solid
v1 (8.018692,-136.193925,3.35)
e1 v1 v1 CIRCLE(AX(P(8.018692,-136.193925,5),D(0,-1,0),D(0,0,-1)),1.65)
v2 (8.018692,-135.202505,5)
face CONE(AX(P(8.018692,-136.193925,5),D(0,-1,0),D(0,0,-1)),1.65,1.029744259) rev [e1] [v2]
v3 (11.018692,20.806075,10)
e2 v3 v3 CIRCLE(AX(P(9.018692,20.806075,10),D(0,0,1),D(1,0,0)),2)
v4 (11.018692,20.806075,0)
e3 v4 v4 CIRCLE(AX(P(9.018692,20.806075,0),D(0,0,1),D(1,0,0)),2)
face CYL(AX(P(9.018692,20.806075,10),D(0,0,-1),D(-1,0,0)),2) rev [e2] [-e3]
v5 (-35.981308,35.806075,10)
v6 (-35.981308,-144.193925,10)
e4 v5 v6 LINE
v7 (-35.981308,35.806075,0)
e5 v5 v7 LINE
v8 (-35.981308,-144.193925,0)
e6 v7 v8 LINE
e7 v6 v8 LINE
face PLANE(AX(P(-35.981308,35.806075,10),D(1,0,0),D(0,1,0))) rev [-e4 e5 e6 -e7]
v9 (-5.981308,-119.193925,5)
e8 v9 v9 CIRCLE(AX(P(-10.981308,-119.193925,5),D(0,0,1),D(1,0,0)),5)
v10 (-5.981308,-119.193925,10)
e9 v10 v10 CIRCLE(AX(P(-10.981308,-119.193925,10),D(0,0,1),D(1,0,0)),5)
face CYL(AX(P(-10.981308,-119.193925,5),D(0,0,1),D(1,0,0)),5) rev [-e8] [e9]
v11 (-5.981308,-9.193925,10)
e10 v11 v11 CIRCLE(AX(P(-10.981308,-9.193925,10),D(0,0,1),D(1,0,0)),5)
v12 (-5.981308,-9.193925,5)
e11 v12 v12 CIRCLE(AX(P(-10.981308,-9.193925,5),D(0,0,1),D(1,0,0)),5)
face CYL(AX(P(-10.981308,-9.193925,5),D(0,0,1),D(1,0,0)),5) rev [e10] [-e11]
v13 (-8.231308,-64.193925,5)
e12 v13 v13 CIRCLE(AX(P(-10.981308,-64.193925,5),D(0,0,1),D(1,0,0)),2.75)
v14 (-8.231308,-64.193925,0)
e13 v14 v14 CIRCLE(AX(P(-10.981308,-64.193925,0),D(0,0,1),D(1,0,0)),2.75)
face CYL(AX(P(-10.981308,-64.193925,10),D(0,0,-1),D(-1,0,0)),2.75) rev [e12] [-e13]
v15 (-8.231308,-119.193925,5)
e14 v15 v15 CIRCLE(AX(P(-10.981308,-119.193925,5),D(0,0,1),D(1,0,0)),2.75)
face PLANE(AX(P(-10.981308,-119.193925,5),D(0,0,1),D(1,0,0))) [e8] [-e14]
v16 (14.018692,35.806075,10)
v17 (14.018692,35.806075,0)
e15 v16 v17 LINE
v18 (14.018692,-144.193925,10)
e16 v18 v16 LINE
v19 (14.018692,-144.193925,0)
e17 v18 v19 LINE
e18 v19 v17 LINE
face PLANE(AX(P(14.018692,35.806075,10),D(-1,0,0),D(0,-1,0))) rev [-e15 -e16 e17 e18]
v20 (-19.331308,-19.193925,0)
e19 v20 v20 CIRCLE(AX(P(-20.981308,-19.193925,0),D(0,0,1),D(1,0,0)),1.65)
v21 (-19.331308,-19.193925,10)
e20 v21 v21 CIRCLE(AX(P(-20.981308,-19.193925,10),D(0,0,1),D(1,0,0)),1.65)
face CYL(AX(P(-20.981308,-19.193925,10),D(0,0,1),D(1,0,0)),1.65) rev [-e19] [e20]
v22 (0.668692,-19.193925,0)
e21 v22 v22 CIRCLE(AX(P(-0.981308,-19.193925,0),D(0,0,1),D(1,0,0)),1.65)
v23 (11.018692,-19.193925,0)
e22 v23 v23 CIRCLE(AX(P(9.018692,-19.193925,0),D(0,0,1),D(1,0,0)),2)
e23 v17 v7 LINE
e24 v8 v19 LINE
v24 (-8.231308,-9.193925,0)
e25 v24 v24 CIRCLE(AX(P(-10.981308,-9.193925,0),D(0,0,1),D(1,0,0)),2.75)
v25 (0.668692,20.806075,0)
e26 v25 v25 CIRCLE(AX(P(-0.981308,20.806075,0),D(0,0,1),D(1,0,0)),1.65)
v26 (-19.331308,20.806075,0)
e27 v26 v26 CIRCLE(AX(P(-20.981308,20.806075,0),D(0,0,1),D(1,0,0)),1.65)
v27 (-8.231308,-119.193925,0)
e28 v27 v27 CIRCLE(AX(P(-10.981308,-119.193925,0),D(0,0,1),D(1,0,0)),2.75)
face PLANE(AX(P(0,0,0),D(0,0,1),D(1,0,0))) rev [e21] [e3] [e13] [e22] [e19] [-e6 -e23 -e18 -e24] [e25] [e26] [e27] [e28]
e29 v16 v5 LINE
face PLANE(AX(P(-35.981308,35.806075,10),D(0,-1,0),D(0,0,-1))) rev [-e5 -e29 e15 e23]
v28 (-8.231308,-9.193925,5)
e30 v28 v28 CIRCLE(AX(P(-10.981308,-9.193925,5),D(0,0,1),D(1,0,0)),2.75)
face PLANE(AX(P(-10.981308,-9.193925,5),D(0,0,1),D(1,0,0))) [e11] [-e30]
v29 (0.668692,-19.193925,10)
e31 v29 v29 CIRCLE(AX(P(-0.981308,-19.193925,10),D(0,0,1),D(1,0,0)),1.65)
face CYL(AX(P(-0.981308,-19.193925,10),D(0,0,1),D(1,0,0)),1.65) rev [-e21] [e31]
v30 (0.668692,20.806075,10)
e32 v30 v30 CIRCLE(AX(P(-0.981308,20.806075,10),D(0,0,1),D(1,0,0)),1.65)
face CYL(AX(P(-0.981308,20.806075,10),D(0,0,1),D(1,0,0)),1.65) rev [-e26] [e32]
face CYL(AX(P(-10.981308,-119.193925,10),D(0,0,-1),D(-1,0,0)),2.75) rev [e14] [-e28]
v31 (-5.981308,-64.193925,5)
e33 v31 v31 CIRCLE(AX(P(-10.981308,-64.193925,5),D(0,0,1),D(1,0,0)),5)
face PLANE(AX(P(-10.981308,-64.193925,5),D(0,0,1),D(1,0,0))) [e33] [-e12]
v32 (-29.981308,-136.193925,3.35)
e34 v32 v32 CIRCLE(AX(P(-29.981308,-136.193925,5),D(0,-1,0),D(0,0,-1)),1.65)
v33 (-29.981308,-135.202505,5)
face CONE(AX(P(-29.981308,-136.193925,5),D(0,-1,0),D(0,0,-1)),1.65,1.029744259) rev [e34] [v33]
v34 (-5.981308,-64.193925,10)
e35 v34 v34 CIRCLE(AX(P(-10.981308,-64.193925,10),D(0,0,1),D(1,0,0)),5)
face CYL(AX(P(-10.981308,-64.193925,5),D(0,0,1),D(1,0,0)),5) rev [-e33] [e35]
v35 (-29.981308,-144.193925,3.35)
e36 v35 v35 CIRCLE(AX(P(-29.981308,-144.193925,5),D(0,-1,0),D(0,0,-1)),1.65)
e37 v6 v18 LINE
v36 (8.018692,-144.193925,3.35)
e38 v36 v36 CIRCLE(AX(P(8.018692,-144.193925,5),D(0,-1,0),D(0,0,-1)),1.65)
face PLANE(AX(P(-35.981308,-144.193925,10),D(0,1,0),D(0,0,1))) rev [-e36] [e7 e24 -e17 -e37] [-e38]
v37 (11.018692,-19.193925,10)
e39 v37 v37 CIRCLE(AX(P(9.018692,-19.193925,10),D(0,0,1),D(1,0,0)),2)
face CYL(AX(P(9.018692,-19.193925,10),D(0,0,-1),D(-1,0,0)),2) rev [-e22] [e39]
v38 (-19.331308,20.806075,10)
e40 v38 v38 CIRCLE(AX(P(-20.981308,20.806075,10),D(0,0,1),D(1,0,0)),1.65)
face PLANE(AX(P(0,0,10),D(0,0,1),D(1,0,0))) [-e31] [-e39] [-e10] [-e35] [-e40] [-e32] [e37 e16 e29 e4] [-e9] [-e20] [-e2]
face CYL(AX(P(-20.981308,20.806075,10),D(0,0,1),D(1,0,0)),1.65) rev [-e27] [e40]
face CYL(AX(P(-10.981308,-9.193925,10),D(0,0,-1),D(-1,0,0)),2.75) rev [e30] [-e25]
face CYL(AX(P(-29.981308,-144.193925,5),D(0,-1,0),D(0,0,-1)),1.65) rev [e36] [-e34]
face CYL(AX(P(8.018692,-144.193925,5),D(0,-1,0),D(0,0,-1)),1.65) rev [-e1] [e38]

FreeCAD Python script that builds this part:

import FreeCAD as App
import Part
import Sketcher

V = App.Vector
Q = App.Units.Quantity


def add_polygon(sketch, points):
    """Adds a closed chain of lines whose ends are joined by coincident constraints."""
    first, n = sketch.GeometryCount, len(points)
    for a, b in zip(points, points[1:] + points[:1]):
        sketch.addGeometry(Part.LineSegment(App.Vector(*a, 0), App.Vector(*b, 0)), False)
    for i in range(n):
        sketch.addConstraint(Sketcher.Constraint("Coincident", first + i, 2, first + (i + 1) % n, 1))

doc = App.newDocument("Part")
body = doc.addObject("PartDesign::Body", "Body")

# Sketch on XY plane
sketch1 = body.newObject("Sketcher::SketchObject", "Sketch")
sketch1.AttachmentSupport = (doc.getObject("XY_Plane"), [""])
sketch1.MapMode = "FlatFace"
add_polygon(sketch1, [(-35.981308, 35.806075), (-35.981308, -144.193925), (14.018692, -144.193925), (14.018692, 35.806075)])  # lines 0-3
sketch1.addGeometry(Part.Circle(V(-10.981308, -119.193925, 0), V(0, 0, 1), 2.75), False)  # 4
sketch1.addGeometry(Part.Circle(V(-10.981308, -64.193925, 0), V(0, 0, 1), 2.75), False)  # 5
sketch1.addGeometry(Part.Circle(V(-10.981308, -9.193925, 0), V(0, 0, 1), 2.75), False)  # 6
sketch1.addGeometry(Part.Circle(V(9.018692, -19.193925, 0), V(0, 0, 1), 2), False)  # 7
sketch1.addGeometry(Part.Circle(V(9.018692, 20.806075, 0), V(0, 0, 1), 2), False)  # 8
sketch1.addConstraint(Sketcher.Constraint("Vertical", 0))
sketch1.addConstraint(Sketcher.Constraint("Horizontal", 1))
sketch1.addConstraint(Sketcher.Constraint("Vertical", 2))
sketch1.addConstraint(Sketcher.Constraint("Horizontal", 3))
sketch1.addConstraint(Sketcher.Constraint("Equal", 4, 5))
sketch1.addConstraint(Sketcher.Constraint("Equal", 5, 6))
sketch1.addConstraint(Sketcher.Constraint("Equal", 7, 8))
sketch1.addConstraint(Sketcher.Constraint("Vertical", 4, 3, 5, 3))
sketch1.addConstraint(Sketcher.Constraint("Vertical", 5, 3, 6, 3))
sketch1.addConstraint(Sketcher.Constraint("Vertical", 7, 3, 8, 3))
sketch1.addConstraint(Sketcher.Constraint("Diameter", 7, Q("4 mm")))
sketch1.addConstraint(Sketcher.Constraint("Diameter", 4, Q("5.5 mm")))
sketch1.addConstraint(Sketcher.Constraint("DistanceX", 1, 1, 1, 2, Q("50 mm")))
sketch1.addConstraint(Sketcher.Constraint("DistanceY", 0, 2, 0, 1, Q("180 mm")))
sketch1.addConstraint(Sketcher.Constraint("DistanceY", 4, 3, 5, 3, Q("55 mm")))
sketch1.addConstraint(Sketcher.Constraint("DistanceY", 5, 3, 6, 3, Q("55 mm")))
sketch1.addConstraint(Sketcher.Constraint("DistanceX", 6, 3, 7, 3, Q("20 mm")))
sketch1.addConstraint(Sketcher.Constraint("DistanceY", 7, 3, 6, 3, Q("10 mm")))
sketch1.addConstraint(Sketcher.Constraint("DistanceY", 6, 3, 8, 3, Q("30 mm")))
sketch1.addConstraint(Sketcher.Constraint("DistanceX", 0, 2, 4, 3, Q("25 mm")))
sketch1.addConstraint(Sketcher.Constraint("DistanceY", 0, 2, 4, 3, Q("25 mm")))
sketch1.addConstraint(Sketcher.Constraint("DistanceX", 4, 3, -1, 1, Q("10.981308 mm")))
sketch1.addConstraint(Sketcher.Constraint("DistanceY", 4, 3, -1, 1, Q("119.193925 mm")))
pad1 = body.newObject("PartDesign::Pad", "Pad")
pad1.Profile = sketch1
pad1.Length = 10

# Sketch on XY plane
sketch2 = body.newObject("Sketcher::SketchObject", "Sketch001")
sketch2.AttachmentSupport = (doc.getObject("XY_Plane"), [""])
sketch2.MapMode = "FlatFace"
sketch2.AttachmentOffset = App.Placement(V(0, 0, 10), App.Rotation())
sketch2.addGeometry(Part.Circle(V(-10.981308, -9.193925, 0), V(0, 0, 1), 5), False)
sketch2.addGeometry(Part.Circle(V(-10.981308, -64.193925, 0), V(0, 0, 1), 5), False)
sketch2.addGeometry(Part.Circle(V(-10.981308, -119.193925, 0), V(0, 0, 1), 5), False)
sketch2.addConstraint(Sketcher.Constraint("Equal", 0, 1))
sketch2.addConstraint(Sketcher.Constraint("Equal", 1, 2))
sketch2.addConstraint(Sketcher.Constraint("Vertical", 0, 3, 1, 3))
sketch2.addConstraint(Sketcher.Constraint("Vertical", 1, 3, 2, 3))
sketch2.addConstraint(Sketcher.Constraint("Diameter", 0, Q("10 mm")))
sketch2.addConstraint(Sketcher.Constraint("DistanceY", 1, 3, 0, 3, Q("55 mm")))
sketch2.addConstraint(Sketcher.Constraint("DistanceY", 2, 3, 1, 3, Q("55 mm")))
sketch2.addConstraint(Sketcher.Constraint("DistanceX", 0, 3, -1, 1, Q("10.981308 mm")))
sketch2.addConstraint(Sketcher.Constraint("DistanceY", 0, 3, -1, 1, Q("9.193925 mm")))
pocket1 = body.newObject("PartDesign::Pocket", "Pocket")
pocket1.Profile = sketch2
pocket1.Length = 5

# Sketch on XY plane
sketch3 = body.newObject("Sketcher::SketchObject", "Sketch002")
sketch3.AttachmentSupport = (doc.getObject("XY_Plane"), [""])
sketch3.MapMode = "FlatFace"
sketch3.AttachmentOffset = App.Placement(V(0, 0, 10), App.Rotation())
sketch3.addGeometry(Part.Circle(V(-0.981308, -19.193925, 0), V(0, 0, 1), 1.65), False)
sketch3.addGeometry(Part.Circle(V(-20.981308, -19.193925, 0), V(0, 0, 1), 1.65), False)
sketch3.addGeometry(Part.Circle(V(-20.981308, 20.806075, 0), V(0, 0, 1), 1.65), False)
sketch3.addGeometry(Part.Circle(V(-0.981308, 20.806075, 0), V(0, 0, 1), 1.65), False)
sketch3.addConstraint(Sketcher.Constraint("Equal", 0, 1))
sketch3.addConstraint(Sketcher.Constraint("Equal", 1, 2))
sketch3.addConstraint(Sketcher.Constraint("Equal", 2, 3))
sketch3.addConstraint(Sketcher.Constraint("Horizontal", 0, 3, 1, 3))
sketch3.addConstraint(Sketcher.Constraint("Horizontal", 2, 3, 3, 3))
sketch3.addConstraint(Sketcher.Constraint("Vertical", 1, 3, 2, 3))
sketch3.addConstraint(Sketcher.Constraint("Vertical", 0, 3, 3, 3))
sketch3.addConstraint(Sketcher.Constraint("Diameter", 0, Q("3.3 mm")))
sketch3.addConstraint(Sketcher.Constraint("DistanceX", 1, 3, 0, 3, Q("20 mm")))
sketch3.addConstraint(Sketcher.Constraint("DistanceY", 1, 3, 2, 3, Q("40 mm")))
sketch3.addConstraint(Sketcher.Constraint("DistanceX", 0, 3, -1, 1, Q("0.981308 mm")))
sketch3.addConstraint(Sketcher.Constraint("DistanceY", 0, 3, -1, 1, Q("19.193925 mm")))
doc.recompute()
hole = body.newObject("PartDesign::Hole", "Hole")
hole.Profile = sketch3
hole.ThreadType = "None"
hole.Diameter = 3.3
hole.DepthType = "ThroughAll"

# Sketch on XZ plane
sketch4 = body.newObject("Sketcher::SketchObject", "Sketch003")
sketch4.AttachmentSupport = (doc.getObject("XZ_Plane"), [""])
sketch4.MapMode = "FlatFace"
sketch4.AttachmentOffset = App.Placement(V(0, 0, 144.193925), App.Rotation())
sketch4.addGeometry(Part.Circle(V(-29.981308, 5, 0), V(0, 0, 1), 1.65), False)
sketch4.addGeometry(Part.Circle(V(8.018692, 5, 0), V(0, 0, 1), 1.65), False)
sketch4.addConstraint(Sketcher.Constraint("Equal", 0, 1))
sketch4.addConstraint(Sketcher.Constraint("Horizontal", 0, 3, 1, 3))
sketch4.addConstraint(Sketcher.Constraint("Diameter", 0, Q("3.3 mm")))
sketch4.addConstraint(Sketcher.Constraint("DistanceY", -1, 1, 0, 3, Q("5 mm")))
sketch4.addConstraint(Sketcher.Constraint("DistanceX", 0, 3, 1, 3, Q("38 mm")))
sketch4.addConstraint(Sketcher.Constraint("DistanceX", 0, 3, -1, 1, Q("29.981308 mm")))
doc.recompute()
hole2 = body.newObject("PartDesign::Hole", "Hole001")
hole2.Profile = sketch4
hole2.ThreadType = "None"
hole2.Diameter = 3.3
hole2.DepthType = "Dimension"
hole2.Depth = 8
hole2.DrillPoint = "Angled"
hole2.DrillPointAngle = 118

doc.recompute()
